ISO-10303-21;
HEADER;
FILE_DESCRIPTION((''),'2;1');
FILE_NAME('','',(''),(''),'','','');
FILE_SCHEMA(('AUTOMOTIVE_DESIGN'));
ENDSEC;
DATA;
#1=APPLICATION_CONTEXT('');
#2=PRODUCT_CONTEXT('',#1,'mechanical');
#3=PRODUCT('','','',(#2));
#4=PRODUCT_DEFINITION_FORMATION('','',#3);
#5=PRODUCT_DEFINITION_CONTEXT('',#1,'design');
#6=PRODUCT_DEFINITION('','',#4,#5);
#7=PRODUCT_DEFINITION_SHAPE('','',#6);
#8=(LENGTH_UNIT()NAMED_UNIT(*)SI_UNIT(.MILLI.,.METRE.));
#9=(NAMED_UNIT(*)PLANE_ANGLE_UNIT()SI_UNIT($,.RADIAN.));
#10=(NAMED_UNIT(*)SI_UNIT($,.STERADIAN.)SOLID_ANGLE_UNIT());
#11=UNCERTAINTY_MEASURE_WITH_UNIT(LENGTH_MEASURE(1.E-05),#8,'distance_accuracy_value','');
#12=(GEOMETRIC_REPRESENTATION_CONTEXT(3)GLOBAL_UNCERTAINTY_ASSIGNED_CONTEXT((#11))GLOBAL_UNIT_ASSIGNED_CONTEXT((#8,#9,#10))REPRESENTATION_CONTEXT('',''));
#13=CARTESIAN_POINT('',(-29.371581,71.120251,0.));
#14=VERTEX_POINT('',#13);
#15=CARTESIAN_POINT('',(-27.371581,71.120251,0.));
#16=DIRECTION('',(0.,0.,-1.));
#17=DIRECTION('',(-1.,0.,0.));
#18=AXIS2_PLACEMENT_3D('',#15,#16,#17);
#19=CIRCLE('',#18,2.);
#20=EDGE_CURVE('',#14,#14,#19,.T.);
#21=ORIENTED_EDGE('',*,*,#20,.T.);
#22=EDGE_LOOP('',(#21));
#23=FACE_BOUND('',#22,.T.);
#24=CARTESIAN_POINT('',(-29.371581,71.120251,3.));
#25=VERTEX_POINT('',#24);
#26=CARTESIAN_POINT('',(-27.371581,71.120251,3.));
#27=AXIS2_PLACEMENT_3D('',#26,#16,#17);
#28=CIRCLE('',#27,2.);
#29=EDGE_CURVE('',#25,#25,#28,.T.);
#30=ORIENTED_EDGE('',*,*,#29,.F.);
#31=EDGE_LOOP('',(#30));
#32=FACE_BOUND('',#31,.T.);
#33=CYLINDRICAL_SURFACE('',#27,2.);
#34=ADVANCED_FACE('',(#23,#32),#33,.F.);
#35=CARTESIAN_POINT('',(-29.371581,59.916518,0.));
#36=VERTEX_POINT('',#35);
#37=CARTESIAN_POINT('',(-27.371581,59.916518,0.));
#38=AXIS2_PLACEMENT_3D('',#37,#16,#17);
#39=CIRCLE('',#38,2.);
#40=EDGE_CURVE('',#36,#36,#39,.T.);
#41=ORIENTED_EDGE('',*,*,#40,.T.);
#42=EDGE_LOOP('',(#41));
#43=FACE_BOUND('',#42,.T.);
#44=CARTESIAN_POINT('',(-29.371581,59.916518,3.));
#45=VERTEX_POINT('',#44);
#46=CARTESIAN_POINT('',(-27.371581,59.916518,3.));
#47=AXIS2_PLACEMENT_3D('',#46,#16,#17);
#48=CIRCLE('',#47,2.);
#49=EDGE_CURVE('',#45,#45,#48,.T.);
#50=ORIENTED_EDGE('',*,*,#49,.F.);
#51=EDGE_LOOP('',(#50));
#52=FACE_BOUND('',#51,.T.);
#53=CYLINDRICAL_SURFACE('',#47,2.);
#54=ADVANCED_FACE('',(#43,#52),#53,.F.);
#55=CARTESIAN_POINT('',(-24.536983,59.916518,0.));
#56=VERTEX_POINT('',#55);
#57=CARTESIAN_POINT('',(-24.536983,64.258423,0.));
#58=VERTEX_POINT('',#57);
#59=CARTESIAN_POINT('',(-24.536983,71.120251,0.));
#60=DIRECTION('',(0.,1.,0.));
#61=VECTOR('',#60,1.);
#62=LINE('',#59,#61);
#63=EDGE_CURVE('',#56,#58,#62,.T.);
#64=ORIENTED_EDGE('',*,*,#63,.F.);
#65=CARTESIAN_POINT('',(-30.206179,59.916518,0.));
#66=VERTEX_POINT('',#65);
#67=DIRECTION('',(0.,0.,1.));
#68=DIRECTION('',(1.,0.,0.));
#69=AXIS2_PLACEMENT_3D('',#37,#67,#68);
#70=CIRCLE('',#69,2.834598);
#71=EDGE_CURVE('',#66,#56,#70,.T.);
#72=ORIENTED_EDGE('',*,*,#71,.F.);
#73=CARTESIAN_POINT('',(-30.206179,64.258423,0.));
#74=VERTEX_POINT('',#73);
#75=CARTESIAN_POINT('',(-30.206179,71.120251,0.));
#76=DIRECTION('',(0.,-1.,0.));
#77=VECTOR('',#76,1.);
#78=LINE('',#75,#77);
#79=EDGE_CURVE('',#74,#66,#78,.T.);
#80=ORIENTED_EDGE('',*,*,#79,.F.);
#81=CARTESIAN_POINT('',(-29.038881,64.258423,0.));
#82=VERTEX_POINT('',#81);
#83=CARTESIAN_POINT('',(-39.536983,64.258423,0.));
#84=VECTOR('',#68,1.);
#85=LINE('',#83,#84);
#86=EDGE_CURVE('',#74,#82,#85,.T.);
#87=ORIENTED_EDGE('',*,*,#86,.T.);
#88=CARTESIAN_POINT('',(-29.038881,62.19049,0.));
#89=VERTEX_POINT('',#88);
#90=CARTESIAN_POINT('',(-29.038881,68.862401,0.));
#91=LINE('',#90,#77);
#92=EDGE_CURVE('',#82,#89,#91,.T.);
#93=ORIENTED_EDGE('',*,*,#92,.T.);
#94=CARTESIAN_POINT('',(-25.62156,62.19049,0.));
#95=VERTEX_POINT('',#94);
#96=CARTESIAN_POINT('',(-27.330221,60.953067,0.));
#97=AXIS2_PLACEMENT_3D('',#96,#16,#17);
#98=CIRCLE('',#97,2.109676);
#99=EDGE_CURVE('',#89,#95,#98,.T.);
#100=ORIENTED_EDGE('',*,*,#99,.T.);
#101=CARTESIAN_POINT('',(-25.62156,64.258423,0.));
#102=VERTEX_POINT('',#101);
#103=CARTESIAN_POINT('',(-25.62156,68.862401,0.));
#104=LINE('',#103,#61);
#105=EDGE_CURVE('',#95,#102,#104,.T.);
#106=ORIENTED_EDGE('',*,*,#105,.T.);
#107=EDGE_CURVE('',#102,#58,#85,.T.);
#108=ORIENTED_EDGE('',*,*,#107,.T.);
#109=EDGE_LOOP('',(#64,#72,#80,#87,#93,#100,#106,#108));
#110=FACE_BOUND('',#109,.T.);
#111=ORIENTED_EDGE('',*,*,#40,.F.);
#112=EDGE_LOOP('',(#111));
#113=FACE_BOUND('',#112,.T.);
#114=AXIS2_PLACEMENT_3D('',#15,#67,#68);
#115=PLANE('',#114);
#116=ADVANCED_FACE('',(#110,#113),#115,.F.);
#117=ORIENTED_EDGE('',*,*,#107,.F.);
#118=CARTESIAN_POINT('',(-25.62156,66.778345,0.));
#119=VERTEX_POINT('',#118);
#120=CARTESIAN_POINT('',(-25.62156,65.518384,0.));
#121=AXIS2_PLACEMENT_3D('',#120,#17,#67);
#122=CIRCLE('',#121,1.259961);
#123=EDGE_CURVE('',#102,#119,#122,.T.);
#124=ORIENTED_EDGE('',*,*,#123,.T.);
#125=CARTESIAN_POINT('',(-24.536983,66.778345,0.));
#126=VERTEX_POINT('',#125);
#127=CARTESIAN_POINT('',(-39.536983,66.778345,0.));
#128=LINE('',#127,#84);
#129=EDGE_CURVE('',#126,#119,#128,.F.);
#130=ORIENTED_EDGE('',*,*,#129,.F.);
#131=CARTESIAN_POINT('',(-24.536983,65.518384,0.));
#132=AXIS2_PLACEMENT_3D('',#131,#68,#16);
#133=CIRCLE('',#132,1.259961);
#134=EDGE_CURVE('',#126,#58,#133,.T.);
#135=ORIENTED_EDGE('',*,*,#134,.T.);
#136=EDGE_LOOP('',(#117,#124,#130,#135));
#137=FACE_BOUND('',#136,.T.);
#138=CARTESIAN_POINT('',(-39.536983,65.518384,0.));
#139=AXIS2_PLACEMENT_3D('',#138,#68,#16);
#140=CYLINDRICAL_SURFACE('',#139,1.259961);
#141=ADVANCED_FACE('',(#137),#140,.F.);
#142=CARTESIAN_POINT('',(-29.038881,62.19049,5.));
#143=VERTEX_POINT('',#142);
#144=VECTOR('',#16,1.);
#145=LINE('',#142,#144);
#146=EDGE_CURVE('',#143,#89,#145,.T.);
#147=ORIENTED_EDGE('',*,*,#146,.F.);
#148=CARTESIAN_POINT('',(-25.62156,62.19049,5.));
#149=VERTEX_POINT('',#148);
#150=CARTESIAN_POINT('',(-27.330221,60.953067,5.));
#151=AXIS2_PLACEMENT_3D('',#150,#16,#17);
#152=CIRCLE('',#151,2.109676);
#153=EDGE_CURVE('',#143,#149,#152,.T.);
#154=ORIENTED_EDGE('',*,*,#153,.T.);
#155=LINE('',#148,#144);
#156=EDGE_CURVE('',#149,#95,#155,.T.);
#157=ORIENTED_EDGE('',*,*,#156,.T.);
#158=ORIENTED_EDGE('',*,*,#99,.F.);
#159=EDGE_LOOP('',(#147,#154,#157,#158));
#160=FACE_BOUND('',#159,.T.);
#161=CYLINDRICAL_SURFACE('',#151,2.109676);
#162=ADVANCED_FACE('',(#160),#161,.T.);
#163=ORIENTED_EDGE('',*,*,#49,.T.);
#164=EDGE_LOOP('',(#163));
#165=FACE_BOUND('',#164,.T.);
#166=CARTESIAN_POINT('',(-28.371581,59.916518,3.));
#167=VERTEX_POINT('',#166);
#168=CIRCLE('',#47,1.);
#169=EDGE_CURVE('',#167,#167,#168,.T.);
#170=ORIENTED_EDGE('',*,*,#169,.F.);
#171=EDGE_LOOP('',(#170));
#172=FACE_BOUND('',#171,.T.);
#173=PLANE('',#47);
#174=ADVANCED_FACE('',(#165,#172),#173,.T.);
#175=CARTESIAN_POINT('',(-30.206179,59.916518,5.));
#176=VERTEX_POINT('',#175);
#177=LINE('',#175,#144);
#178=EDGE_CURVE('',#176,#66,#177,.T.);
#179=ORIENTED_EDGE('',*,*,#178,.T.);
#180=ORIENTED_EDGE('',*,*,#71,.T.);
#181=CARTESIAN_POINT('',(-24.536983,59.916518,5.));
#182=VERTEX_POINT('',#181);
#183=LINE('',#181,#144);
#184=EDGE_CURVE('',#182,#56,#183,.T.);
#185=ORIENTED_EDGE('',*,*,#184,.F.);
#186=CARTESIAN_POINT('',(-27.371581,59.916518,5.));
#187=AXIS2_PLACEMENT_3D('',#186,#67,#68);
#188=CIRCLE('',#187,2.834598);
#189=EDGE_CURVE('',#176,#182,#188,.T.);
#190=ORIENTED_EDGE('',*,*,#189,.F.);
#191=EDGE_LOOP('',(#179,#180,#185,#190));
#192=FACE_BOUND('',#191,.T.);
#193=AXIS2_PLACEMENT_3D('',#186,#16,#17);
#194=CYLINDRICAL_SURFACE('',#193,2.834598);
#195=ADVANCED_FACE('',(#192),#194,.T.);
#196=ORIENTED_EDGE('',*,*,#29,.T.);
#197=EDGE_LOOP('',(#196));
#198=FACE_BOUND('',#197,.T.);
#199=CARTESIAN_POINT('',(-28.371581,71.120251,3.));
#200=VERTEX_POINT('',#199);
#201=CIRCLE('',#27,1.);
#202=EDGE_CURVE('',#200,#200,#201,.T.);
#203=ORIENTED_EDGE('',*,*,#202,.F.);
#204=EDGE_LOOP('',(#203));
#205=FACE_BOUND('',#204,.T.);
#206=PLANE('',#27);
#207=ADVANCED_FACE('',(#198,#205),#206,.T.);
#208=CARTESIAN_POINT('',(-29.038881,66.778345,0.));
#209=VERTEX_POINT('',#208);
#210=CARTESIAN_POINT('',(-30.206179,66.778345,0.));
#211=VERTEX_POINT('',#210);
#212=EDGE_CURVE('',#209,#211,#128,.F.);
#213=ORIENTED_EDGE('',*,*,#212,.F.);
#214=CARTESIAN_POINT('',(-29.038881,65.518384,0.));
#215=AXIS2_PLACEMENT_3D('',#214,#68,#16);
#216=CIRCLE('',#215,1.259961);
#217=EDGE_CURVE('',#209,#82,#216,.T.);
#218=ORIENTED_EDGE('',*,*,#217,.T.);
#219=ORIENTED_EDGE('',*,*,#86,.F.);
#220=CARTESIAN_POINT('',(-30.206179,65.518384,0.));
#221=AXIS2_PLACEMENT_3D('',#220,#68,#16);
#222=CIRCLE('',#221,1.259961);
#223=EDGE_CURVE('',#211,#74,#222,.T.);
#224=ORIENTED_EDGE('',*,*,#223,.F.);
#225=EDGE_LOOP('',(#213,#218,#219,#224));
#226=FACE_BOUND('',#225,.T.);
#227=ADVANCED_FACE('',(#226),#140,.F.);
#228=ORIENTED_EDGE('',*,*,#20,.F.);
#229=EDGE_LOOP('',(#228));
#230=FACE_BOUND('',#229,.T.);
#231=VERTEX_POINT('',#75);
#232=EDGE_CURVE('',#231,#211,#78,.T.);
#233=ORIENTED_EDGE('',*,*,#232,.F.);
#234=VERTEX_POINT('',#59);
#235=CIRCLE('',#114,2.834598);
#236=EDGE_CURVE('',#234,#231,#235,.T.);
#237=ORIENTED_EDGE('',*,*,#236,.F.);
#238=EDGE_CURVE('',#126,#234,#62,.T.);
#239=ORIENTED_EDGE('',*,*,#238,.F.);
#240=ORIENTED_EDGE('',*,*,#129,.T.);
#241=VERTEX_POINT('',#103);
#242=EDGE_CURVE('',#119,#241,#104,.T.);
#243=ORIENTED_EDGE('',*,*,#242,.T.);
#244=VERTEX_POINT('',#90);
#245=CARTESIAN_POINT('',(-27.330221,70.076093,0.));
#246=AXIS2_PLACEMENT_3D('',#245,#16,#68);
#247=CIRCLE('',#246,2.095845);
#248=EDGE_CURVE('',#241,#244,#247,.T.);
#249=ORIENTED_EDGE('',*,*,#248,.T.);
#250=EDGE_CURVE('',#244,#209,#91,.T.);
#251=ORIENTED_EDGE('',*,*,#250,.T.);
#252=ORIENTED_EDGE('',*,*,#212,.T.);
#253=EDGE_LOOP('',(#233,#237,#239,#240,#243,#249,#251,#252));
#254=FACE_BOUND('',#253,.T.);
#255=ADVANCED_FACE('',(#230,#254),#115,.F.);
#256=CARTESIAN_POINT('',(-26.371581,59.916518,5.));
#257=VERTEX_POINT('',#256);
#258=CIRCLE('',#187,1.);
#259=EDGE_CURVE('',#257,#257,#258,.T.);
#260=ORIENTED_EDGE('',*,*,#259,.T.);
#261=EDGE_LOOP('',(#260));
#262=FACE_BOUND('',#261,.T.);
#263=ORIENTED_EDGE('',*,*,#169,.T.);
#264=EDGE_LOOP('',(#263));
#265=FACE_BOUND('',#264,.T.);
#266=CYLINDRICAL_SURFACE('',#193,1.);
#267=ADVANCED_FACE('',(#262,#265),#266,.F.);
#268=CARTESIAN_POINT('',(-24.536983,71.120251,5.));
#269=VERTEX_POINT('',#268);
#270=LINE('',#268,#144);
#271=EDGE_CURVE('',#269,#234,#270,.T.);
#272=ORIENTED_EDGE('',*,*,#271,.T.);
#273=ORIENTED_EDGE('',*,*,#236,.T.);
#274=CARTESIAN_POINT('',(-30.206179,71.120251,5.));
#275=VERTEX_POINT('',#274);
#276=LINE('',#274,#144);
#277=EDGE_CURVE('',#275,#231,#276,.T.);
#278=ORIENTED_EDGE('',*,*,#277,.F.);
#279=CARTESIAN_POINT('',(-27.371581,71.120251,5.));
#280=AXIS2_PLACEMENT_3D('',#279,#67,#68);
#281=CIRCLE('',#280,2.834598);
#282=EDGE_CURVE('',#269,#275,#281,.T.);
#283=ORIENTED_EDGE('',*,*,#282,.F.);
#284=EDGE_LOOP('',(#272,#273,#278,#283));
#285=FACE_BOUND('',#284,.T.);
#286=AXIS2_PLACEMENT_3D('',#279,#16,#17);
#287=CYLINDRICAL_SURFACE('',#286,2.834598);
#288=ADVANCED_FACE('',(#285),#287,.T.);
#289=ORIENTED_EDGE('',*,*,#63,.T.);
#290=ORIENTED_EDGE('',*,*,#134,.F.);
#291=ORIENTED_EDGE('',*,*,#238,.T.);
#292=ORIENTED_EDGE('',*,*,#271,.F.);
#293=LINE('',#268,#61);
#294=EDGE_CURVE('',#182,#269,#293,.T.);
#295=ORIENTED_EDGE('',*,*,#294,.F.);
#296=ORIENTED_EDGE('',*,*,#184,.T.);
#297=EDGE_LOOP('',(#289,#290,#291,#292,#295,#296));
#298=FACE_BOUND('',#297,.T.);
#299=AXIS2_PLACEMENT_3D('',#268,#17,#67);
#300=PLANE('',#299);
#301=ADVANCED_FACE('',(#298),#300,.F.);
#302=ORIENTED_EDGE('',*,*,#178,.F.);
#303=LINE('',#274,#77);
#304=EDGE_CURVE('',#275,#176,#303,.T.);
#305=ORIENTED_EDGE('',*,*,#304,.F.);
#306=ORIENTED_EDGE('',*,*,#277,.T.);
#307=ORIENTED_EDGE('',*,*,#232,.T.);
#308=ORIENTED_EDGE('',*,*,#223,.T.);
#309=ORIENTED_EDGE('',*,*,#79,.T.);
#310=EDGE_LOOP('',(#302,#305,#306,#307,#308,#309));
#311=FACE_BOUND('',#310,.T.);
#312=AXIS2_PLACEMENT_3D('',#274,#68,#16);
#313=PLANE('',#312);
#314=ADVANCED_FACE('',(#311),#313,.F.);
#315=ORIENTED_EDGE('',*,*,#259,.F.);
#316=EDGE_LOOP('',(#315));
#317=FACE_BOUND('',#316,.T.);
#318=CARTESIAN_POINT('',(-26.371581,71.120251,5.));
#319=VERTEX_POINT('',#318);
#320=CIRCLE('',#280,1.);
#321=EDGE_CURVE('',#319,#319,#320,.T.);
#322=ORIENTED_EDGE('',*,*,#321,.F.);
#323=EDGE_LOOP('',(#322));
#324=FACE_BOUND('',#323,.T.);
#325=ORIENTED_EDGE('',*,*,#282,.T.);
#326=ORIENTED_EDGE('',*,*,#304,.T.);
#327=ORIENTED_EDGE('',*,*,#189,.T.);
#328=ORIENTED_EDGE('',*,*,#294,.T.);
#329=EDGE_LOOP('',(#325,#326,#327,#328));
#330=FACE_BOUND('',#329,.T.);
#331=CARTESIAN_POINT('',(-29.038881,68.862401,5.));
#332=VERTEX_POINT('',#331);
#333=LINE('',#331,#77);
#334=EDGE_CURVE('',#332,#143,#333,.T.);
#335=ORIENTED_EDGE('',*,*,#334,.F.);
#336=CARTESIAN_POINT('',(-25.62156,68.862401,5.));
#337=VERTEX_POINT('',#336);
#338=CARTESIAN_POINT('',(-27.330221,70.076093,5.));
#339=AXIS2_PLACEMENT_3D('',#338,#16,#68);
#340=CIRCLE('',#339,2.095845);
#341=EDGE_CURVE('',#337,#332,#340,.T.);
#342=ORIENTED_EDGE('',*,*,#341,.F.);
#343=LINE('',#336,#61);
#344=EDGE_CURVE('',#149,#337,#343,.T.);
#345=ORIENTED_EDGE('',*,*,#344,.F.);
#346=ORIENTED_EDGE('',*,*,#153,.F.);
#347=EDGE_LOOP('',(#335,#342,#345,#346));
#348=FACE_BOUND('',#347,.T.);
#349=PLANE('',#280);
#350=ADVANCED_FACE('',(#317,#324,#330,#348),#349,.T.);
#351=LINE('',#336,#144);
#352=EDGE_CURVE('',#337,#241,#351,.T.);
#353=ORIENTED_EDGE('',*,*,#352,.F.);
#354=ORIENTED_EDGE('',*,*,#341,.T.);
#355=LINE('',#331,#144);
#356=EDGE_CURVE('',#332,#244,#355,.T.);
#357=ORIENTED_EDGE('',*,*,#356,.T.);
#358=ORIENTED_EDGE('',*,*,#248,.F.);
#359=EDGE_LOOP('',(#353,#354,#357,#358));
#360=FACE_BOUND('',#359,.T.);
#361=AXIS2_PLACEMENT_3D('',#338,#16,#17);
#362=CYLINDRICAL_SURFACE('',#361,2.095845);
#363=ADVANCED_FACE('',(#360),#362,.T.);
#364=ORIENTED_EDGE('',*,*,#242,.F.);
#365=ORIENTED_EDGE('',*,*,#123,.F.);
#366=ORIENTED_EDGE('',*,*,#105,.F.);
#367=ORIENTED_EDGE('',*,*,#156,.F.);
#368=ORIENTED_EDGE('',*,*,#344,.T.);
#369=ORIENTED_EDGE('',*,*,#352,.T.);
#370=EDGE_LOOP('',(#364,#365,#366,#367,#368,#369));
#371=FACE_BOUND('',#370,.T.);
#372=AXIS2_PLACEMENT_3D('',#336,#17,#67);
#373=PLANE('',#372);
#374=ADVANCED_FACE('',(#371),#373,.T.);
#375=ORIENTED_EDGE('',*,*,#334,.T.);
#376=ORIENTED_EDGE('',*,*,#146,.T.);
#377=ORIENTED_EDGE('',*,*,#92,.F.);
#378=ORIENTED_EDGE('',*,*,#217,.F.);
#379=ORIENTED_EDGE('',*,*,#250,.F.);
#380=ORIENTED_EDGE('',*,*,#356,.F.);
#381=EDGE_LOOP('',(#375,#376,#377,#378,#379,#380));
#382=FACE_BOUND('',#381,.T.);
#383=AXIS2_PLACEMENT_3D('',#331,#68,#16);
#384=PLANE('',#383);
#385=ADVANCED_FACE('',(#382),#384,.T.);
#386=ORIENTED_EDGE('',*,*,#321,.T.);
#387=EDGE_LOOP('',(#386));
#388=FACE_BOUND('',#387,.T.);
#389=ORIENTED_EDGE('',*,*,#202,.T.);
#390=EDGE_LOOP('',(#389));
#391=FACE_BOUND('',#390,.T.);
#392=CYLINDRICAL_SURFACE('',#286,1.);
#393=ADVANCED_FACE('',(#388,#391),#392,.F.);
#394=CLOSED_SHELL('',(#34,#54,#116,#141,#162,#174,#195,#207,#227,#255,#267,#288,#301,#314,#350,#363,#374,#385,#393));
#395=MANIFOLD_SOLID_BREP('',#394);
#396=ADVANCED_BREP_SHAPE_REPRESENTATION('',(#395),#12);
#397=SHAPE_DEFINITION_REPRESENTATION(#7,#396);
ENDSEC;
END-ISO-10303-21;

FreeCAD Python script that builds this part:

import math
import FreeCAD as App
import Part
import Sketcher

V = App.Vector

doc = App.newDocument("Part")
body = doc.addObject("PartDesign::Body", "Body")

# Sketch on XY plane
sketch1 = doc.addObject("Sketcher::SketchObject", "Sketch")
body.addObject(sketch1)
sketch1.AttachmentSupport = (doc.XY_Plane, [""])
sketch1.MapMode = "FlatFace"
sketch1.addGeometry([
    Part.LineSegment(V(-30.206179, 71.120251, 0), V(-30.206179, 59.916518, 0)),  # 0
    Part.ArcOfCircle(Part.Circle(V(-27.371581, 59.916518, 0), V(0, 0, 1), 2.834598), math.radians(-180), math.radians(0)),  # 1
    Part.LineSegment(V(-24.536983, 59.916518, 0), V(-24.536983, 71.120251, 0)),  # 2
    Part.ArcOfCircle(Part.Circle(V(-27.371581, 71.120251, 0), V(0, 0, 1), 2.834598), math.radians(0), math.radians(180)),  # 3
    Part.Circle(V(-27.371581, 59.916518, 0), V(0, 0, 1), 1),  # 4
    Part.Circle(V(-27.371581, 71.120251, 0), V(0, 0, 1), 1),  # 5
    Part.LineSegment(V(-29.038881, 62.19049, 0), V(-29.038881, 68.862401, 0)),  # 6
    Part.ArcOfCircle(Part.Circle(V(-27.330221, 70.076093, 0), V(0, 0, 1), 2.095845), math.radians(-144.613157), math.radians(-35.386843)),  # 7
    Part.LineSegment(V(-25.62156, 68.862401, 0), V(-25.62156, 62.19049, 0)),  # 8
    Part.ArcOfCircle(Part.Circle(V(-27.330221, 60.953067, 0), V(0, 0, 1), 2.109676), math.radians(35.912295), math.radians(144.087705)),  # 9
], False)
sketch1.addConstraint([
    Sketcher.Constraint("Tangent", 0, 2, 1, 1),
    Sketcher.Constraint("Tangent", 1, 2, 2, 1),
    Sketcher.Constraint("Tangent", 2, 2, 3, 1),
    Sketcher.Constraint("Tangent", 3, 2, 0, 1),
    Sketcher.Constraint("Coincident", 6, 2, 7, 1),
    Sketcher.Constraint("Coincident", 7, 2, 8, 1),
    Sketcher.Constraint("Coincident", 8, 2, 9, 1),
    Sketcher.Constraint("Coincident", 9, 2, 6, 1),
    Sketcher.Constraint("Vertical", 0),
    Sketcher.Constraint("Vertical", 2),
    Sketcher.Constraint("Vertical", 6),
    Sketcher.Constraint("Vertical", 8),
    Sketcher.Constraint("Coincident", 4, 3, 1, 3),
    Sketcher.Constraint("Coincident", 5, 3, 3, 3),
    Sketcher.Constraint("Equal", 4, 5),
    Sketcher.Constraint("Horizontal", 6, 2, 7, 2),
    Sketcher.Constraint("Horizontal", 8, 2, 9, 2),
    Sketcher.Constraint("Diameter", 4, 2.0),
    Sketcher.Constraint("Radius", 1, 2.834598),
    Sketcher.Constraint("Radius", 7, 2.095845),
    Sketcher.Constraint("Radius", 9, 2.109676),
    Sketcher.Constraint("DistanceY", 6, 1, 6, 2, 6.671911),
    Sketcher.Constraint("DistanceY", -1, 1, 6, 2, 68.862401),
    Sketcher.Constraint("DistanceX", 6, 2, 3, 3, 1.6673),
    Sketcher.Constraint("DistanceY", 0, 2, 0, 1, 11.203733),
    Sketcher.Constraint("DistanceX", 1, 3, -1, 1, 27.371581),
    Sketcher.Constraint("DistanceY", -1, 1, 3, 3, 71.120251),
    Sketcher.Constraint("DistanceX", 7, 3, -1, 1, 27.330221),
])
pad1 = doc.addObject("PartDesign::Pad", "Pad")
body.addObject(pad1)
pad1.Profile = sketch1
pad1.Length = 5

# Sketch on YZ plane
sketch2 = doc.addObject("Sketcher::SketchObject", "Sketch001")
body.addObject(sketch2)
sketch2.AttachmentSupport = (doc.YZ_Plane, [""])
sketch2.MapMode = "FlatFace"
sketch2.AttachmentOffset = App.Placement(V(0, 0, -24.536983), App.Rotation())
sketch2.addGeometry(Part.Circle(V(65.518384, 0, 0), V(0, 0, 1), 1.259961), False)
sketch2.addConstraint([
    Sketcher.Constraint("PointOnObject", 0, 3, -1),
    Sketcher.Constraint("Diameter", 0, 2.519922),
    Sketcher.Constraint("DistanceX", -1, 1, 0, 3, 65.518384),
])
pocket1 = doc.addObject("PartDesign::Pocket", "Pocket")
body.addObject(pocket1)
pocket1.Profile = sketch2
pocket1.Length = 15

# Sketch on XY plane
sketch3 = doc.addObject("Sketcher::SketchObject", "Sketch002")
body.addObject(sketch3)
sketch3.AttachmentSupport = (doc.XY_Plane, [""])
sketch3.MapMode = "FlatFace"
sketch3.addGeometry([
    Part.Circle(V(-27.371581, 71.120251, 0), V(0, 0, 1), 2),
    Part.Circle(V(-27.371581, 59.916518, 0), V(0, 0, 1), 2),
], False)
sketch3.addConstraint([
    Sketcher.Constraint("Equal", 0, 1),
    Sketcher.Constraint("Vertical", 0, 3, 1, 3),
    Sketcher.Constraint("Diameter", 0, 4.0),
    Sketcher.Constraint("DistanceX", 0, 3, -1, 1, 27.371581),
    Sketcher.Constraint("DistanceY", -1, 1, 0, 3, 71.120251),
    Sketcher.Constraint("DistanceY", -1, 1, 1, 3, 59.916518),
])
pocket2 = doc.addObject("PartDesign::Pocket", "Pocket001")
body.addObject(pocket2)
pocket2.Profile = sketch3
pocket2.Length = 3
pocket2.Reversed = True

doc.recompute()
